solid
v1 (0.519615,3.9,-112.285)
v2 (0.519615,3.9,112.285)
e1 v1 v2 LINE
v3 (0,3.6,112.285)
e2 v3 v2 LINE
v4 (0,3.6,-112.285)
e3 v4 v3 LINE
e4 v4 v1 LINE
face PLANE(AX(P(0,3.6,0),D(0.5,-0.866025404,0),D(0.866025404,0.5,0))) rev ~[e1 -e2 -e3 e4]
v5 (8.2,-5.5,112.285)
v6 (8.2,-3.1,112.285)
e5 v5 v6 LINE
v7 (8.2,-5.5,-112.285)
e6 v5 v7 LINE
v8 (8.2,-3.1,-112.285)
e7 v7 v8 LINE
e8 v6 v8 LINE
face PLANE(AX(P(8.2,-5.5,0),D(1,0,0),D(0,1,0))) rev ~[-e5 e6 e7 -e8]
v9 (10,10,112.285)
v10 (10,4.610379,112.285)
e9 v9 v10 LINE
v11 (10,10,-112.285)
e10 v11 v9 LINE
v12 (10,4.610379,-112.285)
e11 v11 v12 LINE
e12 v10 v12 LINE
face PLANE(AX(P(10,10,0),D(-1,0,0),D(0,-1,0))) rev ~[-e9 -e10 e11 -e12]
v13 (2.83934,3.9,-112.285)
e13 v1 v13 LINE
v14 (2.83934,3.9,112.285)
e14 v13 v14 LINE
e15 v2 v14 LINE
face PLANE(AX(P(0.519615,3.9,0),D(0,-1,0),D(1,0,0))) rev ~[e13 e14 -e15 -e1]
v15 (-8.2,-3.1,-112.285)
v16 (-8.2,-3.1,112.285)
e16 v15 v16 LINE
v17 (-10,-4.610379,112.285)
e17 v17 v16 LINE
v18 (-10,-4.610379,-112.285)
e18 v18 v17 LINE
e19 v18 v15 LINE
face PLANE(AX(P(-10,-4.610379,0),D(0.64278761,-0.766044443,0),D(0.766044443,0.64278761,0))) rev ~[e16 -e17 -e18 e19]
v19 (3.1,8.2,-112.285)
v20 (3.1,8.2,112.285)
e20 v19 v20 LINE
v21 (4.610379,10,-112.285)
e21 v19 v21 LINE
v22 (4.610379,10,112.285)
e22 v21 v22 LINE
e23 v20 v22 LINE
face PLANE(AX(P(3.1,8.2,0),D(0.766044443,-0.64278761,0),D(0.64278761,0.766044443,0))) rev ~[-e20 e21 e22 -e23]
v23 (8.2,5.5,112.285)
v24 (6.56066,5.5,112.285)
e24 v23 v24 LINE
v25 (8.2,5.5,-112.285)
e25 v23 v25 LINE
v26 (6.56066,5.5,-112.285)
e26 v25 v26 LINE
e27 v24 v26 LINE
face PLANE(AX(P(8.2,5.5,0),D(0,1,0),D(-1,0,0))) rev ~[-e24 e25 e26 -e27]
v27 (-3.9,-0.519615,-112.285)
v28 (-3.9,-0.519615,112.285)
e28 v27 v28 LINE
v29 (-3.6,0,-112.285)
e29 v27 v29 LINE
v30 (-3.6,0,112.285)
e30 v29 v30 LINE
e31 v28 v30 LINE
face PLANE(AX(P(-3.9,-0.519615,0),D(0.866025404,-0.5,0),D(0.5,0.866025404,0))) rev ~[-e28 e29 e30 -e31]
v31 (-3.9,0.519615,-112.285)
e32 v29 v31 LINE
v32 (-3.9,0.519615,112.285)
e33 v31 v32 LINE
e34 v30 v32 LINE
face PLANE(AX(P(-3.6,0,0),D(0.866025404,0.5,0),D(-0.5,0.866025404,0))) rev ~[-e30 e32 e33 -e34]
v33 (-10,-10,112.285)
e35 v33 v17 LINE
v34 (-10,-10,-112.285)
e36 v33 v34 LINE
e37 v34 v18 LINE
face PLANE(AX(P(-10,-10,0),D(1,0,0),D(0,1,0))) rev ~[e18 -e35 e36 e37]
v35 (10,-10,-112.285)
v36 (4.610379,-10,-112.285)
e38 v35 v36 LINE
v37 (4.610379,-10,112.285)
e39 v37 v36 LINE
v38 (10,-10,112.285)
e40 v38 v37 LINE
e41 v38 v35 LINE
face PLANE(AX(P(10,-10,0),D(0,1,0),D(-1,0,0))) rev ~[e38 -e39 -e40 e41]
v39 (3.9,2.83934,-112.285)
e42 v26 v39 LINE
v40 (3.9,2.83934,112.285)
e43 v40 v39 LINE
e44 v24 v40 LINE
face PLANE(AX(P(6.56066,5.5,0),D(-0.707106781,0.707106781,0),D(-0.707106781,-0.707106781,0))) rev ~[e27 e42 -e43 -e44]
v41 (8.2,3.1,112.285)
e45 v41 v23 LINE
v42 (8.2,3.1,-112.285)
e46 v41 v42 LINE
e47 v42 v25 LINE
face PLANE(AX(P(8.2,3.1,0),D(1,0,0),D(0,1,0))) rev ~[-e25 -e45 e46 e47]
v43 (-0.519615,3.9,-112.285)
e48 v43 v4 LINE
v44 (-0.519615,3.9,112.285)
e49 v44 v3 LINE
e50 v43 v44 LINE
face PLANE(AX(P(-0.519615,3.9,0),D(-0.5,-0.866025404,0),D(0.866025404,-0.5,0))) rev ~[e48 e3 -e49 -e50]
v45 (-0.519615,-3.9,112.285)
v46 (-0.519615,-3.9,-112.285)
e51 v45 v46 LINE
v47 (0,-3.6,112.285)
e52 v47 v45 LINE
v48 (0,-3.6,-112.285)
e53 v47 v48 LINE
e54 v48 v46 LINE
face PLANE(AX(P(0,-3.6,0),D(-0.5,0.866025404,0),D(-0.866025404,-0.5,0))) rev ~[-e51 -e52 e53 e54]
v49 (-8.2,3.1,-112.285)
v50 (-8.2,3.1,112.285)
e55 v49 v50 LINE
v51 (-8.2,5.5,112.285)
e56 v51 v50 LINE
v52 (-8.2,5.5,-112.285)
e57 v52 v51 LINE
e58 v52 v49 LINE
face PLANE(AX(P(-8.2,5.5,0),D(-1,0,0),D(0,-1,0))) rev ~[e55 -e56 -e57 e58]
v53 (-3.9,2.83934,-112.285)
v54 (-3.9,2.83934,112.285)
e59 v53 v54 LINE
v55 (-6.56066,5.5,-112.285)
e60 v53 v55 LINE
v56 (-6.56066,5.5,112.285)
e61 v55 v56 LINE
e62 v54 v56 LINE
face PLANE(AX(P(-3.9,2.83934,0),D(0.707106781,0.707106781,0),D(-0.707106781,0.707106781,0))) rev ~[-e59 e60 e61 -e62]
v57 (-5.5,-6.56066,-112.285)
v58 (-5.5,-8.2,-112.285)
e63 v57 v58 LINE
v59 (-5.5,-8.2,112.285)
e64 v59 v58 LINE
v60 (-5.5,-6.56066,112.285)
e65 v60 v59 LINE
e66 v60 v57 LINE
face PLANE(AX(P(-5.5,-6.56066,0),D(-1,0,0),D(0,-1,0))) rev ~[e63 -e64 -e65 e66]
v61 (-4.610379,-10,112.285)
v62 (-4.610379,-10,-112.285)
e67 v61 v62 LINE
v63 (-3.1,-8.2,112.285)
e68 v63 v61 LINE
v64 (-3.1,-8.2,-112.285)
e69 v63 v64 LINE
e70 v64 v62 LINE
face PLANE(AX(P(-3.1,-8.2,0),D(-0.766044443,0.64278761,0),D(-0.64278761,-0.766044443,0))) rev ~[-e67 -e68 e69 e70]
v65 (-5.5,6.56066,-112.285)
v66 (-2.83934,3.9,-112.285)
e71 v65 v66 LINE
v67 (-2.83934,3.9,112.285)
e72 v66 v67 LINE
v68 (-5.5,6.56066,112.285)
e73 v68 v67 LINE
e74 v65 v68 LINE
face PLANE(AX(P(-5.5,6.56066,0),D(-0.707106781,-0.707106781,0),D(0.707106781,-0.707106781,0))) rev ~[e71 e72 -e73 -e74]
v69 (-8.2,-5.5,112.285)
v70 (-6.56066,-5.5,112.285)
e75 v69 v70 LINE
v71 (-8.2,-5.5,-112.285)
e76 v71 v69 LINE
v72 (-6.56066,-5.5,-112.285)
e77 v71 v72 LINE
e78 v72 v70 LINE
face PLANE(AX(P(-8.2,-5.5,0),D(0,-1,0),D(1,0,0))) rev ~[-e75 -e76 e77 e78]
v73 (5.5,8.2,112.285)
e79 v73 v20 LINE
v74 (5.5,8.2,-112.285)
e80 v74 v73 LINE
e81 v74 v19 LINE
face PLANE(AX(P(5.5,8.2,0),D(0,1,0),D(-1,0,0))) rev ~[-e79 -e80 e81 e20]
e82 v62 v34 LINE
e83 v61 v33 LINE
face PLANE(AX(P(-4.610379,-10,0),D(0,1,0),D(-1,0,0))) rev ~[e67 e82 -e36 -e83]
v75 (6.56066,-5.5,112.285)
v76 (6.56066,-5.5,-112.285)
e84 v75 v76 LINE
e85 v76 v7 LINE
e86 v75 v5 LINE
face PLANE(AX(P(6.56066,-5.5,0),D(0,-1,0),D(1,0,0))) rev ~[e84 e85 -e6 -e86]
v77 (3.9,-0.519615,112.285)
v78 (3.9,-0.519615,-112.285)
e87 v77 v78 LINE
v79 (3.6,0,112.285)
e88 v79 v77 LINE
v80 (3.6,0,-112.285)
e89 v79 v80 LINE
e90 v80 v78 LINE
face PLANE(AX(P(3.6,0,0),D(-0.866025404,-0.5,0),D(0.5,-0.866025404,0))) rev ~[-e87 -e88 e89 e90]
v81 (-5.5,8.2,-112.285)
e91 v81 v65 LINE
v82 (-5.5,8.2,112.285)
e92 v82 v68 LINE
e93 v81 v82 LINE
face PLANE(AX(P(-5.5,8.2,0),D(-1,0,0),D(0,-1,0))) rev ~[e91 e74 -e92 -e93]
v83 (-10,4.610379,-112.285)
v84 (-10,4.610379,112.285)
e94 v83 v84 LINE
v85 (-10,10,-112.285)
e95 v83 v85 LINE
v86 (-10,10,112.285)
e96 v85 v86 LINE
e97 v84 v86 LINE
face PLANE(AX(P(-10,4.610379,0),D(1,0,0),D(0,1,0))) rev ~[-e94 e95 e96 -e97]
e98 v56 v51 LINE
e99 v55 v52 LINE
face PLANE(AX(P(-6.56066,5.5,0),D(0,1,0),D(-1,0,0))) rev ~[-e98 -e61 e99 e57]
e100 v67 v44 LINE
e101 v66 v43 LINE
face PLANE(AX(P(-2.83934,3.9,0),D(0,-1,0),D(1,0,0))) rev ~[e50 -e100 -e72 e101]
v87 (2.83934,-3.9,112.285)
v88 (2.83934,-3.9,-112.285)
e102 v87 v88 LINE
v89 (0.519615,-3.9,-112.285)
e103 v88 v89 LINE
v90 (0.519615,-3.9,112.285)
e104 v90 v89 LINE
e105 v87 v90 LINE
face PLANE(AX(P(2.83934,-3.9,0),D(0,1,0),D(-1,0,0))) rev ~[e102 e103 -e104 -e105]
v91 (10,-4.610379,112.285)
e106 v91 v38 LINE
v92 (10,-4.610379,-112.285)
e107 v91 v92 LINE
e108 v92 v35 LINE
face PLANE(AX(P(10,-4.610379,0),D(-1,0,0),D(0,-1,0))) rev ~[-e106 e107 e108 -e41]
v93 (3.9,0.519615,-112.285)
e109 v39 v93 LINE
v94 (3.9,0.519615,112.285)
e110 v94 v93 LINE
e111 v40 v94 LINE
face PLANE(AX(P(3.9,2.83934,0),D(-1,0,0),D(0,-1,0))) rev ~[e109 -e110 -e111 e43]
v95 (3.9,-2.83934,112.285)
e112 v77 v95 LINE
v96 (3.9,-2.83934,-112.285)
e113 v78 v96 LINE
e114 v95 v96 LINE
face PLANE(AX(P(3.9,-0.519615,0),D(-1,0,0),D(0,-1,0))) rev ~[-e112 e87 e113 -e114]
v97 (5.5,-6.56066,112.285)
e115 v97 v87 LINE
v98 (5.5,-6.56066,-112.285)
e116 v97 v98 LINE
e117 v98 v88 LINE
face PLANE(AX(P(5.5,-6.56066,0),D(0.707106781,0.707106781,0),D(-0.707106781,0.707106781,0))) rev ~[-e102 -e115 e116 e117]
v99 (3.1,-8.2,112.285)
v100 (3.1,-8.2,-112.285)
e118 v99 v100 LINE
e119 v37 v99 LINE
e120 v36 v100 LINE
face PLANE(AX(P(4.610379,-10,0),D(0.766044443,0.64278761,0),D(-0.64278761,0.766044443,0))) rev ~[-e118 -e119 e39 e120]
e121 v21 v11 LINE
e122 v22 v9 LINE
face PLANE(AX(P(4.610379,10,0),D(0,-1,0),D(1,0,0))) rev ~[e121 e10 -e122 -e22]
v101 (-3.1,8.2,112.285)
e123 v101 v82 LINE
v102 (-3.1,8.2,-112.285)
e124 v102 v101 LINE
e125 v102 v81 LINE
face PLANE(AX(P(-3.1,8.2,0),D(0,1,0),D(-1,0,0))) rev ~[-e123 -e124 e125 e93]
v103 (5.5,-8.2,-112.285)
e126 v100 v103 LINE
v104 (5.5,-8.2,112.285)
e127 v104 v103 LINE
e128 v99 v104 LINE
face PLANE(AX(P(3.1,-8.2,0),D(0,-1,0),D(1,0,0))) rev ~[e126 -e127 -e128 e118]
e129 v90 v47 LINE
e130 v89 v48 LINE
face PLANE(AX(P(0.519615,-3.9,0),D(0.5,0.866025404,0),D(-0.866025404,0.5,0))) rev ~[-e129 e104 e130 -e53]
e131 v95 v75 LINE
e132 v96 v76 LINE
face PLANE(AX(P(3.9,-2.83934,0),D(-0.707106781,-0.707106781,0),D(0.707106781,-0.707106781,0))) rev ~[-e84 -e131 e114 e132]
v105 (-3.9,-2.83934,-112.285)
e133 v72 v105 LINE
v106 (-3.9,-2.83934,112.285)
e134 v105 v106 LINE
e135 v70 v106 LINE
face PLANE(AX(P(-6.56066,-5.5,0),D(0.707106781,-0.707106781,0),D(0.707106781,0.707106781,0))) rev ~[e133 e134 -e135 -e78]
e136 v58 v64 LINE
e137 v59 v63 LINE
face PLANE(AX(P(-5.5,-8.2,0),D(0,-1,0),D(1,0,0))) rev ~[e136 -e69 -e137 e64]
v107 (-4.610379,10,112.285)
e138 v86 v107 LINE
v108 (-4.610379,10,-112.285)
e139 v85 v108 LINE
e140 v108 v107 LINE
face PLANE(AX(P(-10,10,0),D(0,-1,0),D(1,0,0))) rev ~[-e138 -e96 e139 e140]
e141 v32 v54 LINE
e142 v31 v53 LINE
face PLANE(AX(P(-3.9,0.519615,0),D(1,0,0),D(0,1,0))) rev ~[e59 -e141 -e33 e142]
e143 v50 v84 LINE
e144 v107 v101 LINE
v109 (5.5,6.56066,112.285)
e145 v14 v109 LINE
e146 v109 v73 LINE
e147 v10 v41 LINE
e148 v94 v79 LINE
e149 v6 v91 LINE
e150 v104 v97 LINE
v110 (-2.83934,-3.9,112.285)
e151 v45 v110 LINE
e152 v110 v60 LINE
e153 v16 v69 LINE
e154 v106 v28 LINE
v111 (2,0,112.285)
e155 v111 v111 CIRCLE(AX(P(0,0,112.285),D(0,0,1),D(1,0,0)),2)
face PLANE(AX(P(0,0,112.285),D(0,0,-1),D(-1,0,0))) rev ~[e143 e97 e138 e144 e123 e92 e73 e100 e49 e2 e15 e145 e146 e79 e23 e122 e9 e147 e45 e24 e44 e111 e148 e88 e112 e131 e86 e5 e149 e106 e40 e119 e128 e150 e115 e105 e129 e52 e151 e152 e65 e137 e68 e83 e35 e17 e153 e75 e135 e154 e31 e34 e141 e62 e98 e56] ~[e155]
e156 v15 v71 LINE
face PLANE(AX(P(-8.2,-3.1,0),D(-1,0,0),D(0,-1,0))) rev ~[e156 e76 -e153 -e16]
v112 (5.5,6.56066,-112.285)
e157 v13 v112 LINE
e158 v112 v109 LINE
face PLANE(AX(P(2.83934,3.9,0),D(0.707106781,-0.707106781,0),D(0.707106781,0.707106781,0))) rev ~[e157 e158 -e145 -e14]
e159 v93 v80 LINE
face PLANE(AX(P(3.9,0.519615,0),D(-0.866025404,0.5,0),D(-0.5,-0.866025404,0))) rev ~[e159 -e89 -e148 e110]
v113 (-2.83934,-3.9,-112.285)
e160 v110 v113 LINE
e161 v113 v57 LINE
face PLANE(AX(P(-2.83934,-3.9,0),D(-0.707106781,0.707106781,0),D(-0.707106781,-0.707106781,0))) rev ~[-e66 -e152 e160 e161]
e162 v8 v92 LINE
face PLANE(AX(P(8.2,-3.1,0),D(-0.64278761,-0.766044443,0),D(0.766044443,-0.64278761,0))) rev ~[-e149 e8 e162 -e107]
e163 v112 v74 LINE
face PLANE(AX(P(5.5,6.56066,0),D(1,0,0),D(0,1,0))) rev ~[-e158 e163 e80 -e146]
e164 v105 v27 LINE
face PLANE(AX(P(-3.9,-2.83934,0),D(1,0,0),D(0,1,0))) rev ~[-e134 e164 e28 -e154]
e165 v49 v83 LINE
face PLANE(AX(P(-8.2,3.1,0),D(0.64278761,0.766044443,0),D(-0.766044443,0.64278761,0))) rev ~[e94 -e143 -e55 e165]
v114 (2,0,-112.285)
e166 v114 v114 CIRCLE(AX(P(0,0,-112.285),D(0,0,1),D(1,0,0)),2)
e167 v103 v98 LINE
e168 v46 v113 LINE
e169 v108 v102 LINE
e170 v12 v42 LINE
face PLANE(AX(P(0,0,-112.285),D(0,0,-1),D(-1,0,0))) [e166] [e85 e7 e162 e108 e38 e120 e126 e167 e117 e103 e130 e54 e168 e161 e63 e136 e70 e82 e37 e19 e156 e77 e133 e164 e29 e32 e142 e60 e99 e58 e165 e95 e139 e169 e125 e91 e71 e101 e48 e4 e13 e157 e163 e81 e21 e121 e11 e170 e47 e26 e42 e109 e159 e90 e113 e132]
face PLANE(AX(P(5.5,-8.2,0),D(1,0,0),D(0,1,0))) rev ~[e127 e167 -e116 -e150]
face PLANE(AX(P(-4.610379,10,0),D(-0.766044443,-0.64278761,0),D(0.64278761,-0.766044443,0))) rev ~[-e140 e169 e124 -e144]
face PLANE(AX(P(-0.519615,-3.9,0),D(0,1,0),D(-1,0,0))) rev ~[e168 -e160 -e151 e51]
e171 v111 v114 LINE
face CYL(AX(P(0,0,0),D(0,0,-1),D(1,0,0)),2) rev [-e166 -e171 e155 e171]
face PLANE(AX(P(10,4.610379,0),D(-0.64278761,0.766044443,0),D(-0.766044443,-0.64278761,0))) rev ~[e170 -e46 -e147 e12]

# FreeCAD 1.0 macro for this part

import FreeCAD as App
import Part
import Sketcher
from FreeCAD import Vector
Q = App.Units.Quantity


def add_polygon(sketch, points):
    """Adds a closed chain of lines whose ends are joined by coincident constraints."""
    first, n = sketch.GeometryCount, len(points)
    for a, b in zip(points, points[1:] + points[:1]):
        sketch.addGeometry(Part.LineSegment(App.Vector(*a, 0), App.Vector(*b, 0)), False)
    for i in range(n):
        sketch.addConstraint(Sketcher.Constraint("Coincident", first + i, 2, first + (i + 1) % n, 1))

doc = App.newDocument("Part")
body = doc.addObject("PartDesign::Body", "Body")

# Sketch on XY plane
sketch1 = body.newObject("Sketcher::SketchObject", "Sketch")
sketch1.AttachmentSupport = (doc.getObject("XY_Plane"), [""])
sketch1.MapMode = "FlatFace"
add_polygon(sketch1, [(10, 4.610379), (10, 10), (4.610379, 10), (3.1, 8.2), (5.5, 8.2), (5.5, 6.56066), (2.83934, 3.9), (0.519615, 3.9), (0, 3.6), (-0.519615, 3.9), (-2.83934, 3.9), (-5.5, 6.56066), (-5.5, 8.2), (-3.1, 8.2), (-4.610379, 10), (-10, 10), (-10, 4.610379), (-8.2, 3.1), (-8.2, 5.5), (-6.56066, 5.5), (-3.9, 2.83934), (-3.9, 0.519615), (-3.6, 0), (-3.9, -0.519615), (-3.9, -2.83934), (-6.56066, -5.5), (-8.2, -5.5), (-8.2, -3.1), (-10, -4.610379), (-10, -10), (-4.610379, -10), (-3.1, -8.2), (-5.5, -8.2), (-5.5, -6.56066), (-2.83934, -3.9), (-0.519615, -3.9), (0, -3.6), (0.519615, -3.9), (2.83934, -3.9), (5.5, -6.56066), (5.5, -8.2), (3.1, -8.2), (4.610379, -10), (10, -10), (10, -4.610379), (8.2, -3.1), (8.2, -5.5), (6.56066, -5.5), (3.9, -2.83934), (3.9, -0.519615), (3.6, 0), (3.9, 0.519615), (3.9, 2.83934), (6.56066, 5.5), (8.2, 5.5), (8.2, 3.1)])  # lines 0-55
sketch1.addGeometry(Part.Circle(Vector(0, 0, 0), Vector(0, 0, 1), 2), False)  # 56
sketch1.addConstraint(Sketcher.Constraint("Vertical", 0))
sketch1.addConstraint(Sketcher.Constraint("Horizontal", 1))
sketch1.addConstraint(Sketcher.Constraint("Horizontal", 3))
sketch1.addConstraint(Sketcher.Constraint("Vertical", 4))
sketch1.addConstraint(Sketcher.Constraint("Horizontal", 6))
sketch1.addConstraint(Sketcher.Constraint("Horizontal", 9))
sketch1.addConstraint(Sketcher.Constraint("Vertical", 11))
sketch1.addConstraint(Sketcher.Constraint("Horizontal", 12))
sketch1.addConstraint(Sketcher.Constraint("Horizontal", 14))
sketch1.addConstraint(Sketcher.Constraint("Vertical", 15))
sketch1.addConstraint(Sketcher.Constraint("Vertical", 17))
sketch1.addConstraint(Sketcher.Constraint("Horizontal", 18))
sketch1.addConstraint(Sketcher.Constraint("Vertical", 20))
sketch1.addConstraint(Sketcher.Constraint("Vertical", 23))
sketch1.addConstraint(Sketcher.Constraint("Horizontal", 25))
sketch1.addConstraint(Sketcher.Constraint("Vertical", 26))
sketch1.addConstraint(Sketcher.Constraint("Vertical", 28))
sketch1.addConstraint(Sketcher.Constraint("Horizontal", 29))
sketch1.addConstraint(Sketcher.Constraint("Horizontal", 31))
sketch1.addConstraint(Sketcher.Constraint("Vertical", 32))
sketch1.addConstraint(Sketcher.Constraint("Horizontal", 34))
sketch1.addConstraint(Sketcher.Constraint("Horizontal", 37))
sketch1.addConstraint(Sketcher.Constraint("Vertical", 39))
sketch1.addConstraint(Sketcher.Constraint("Horizontal", 40))
sketch1.addConstraint(Sketcher.Constraint("Horizontal", 42))
sketch1.addConstraint(Sketcher.Constraint("Vertical", 43))
sketch1.addConstraint(Sketcher.Constraint("Vertical", 45))
sketch1.addConstraint(Sketcher.Constraint("Horizontal", 46))
sketch1.addConstraint(Sketcher.Constraint("Vertical", 48))
sketch1.addConstraint(Sketcher.Constraint("Vertical", 51))
sketch1.addConstraint(Sketcher.Constraint("Horizontal", 53))
sketch1.addConstraint(Sketcher.Constraint("Vertical", 54))
sketch1.addConstraint(Sketcher.Constraint("Coincident", 56, 3, -1, 1))
sketch1.addConstraint(Sketcher.Constraint("Symmetric", 0, 2, 28, 2, -1, 1))
sketch1.addConstraint(Sketcher.Constraint("Symmetric", 2, 2, 30, 2, -1, 1))
sketch1.addConstraint(Sketcher.Constraint("Symmetric", 4, 2, 32, 2, -1, 1))
sketch1.addConstraint(Sketcher.Constraint("Symmetric", 5, 2, 33, 2, -1, 1))
sketch1.addConstraint(Sketcher.Constraint("Symmetric", 7, 2, 35, 2, -1, 1))
sketch1.addConstraint(Sketcher.Constraint("Symmetric", 8, 2, 36, 2, -1, 1))
sketch1.addConstraint(Sketcher.Constraint("Symmetric", 10, 2, 38, 2, -1, 1))
sketch1.addConstraint(Sketcher.Constraint("Symmetric", 12, 2, 40, 2, -1, 1))
sketch1.addConstraint(Sketcher.Constraint("Symmetric", 13, 2, 41, 2, -1, 1))
sketch1.addConstraint(Sketcher.Constraint("Symmetric", 15, 2, 43, 2, -1, 1))
sketch1.addConstraint(Sketcher.Constraint("Symmetric", 16, 2, 44, 2, -1, 1))
sketch1.addConstraint(Sketcher.Constraint("Symmetric", 18, 2, 46, 2, -1, 1))
sketch1.addConstraint(Sketcher.Constraint("Symmetric", 19, 2, 47, 2, -1, 1))
sketch1.addConstraint(Sketcher.Constraint("Symmetric", 21, 2, 49, 2, -1, 1))
sketch1.addConstraint(Sketcher.Constraint("Symmetric", 22, 2, 50, 2, -1, 1))
sketch1.addConstraint(Sketcher.Constraint("Symmetric", 24, 2, 52, 2, -1, 1))
sketch1.addConstraint(Sketcher.Constraint("Symmetric", 26, 2, 54, 2, -1, 1))
sketch1.addConstraint(Sketcher.Constraint("Symmetric", 6, 2, 8, 2, -2))
sketch1.addConstraint(Sketcher.Constraint("Symmetric", 4, 2, 10, 2, -2))
sketch1.addConstraint(Sketcher.Constraint("Symmetric", 2, 2, 12, 2, -2))
sketch1.addConstraint(Sketcher.Constraint("Symmetric", 1, 2, 13, 2, -2))
sketch1.addConstraint(Sketcher.Constraint("Symmetric", 27, 2, 43, 2, -2))
sketch1.addConstraint(Sketcher.Constraint("Symmetric", 26, 2, 44, 2, -2))
sketch1.addConstraint(Sketcher.Constraint("Symmetric", 24, 2, 46, 2, -2))
sketch1.addConstraint(Sketcher.Constraint("Symmetric", 23, 2, 47, 2, -2))
sketch1.addConstraint(Sketcher.Constraint("PointOnObject", 7, 2, -2))
sketch1.addConstraint(Sketcher.Constraint("PointOnObject", 21, 2, -1))
sketch1.addConstraint(Sketcher.Constraint("Perpendicular", 5, 10))
sketch1.addConstraint(Sketcher.Constraint("Perpendicular", 2, 16))
sketch1.addConstraint(Sketcher.Constraint("Parallel", 10, 19))
sketch1.addConstraint(Sketcher.Constraint("Perpendicular", 7, 21))
sketch1.addConstraint(Sketcher.Constraint("Perpendicular", 8, 22))
sketch1.addConstraint(Sketcher.Constraint("Perpendicular", 19, 24))
sketch1.addConstraint(Sketcher.Constraint("Perpendicular", 16, 30))
sketch1.addConstraint(Sketcher.Constraint("Perpendicular", 21, 35))
sketch1.addConstraint(Sketcher.Constraint("Perpendicular", 33, 38))
sketch1.addConstraint(Sketcher.Constraint("Perpendicular", 35, 49))
sketch1.addConstraint(Sketcher.Constraint("Perpendicular", 47, 52))
sketch1.addConstraint(Sketcher.Constraint("Perpendicular", 41, 55))
sketch1.addConstraint(Sketcher.Constraint("Equal", 42, 0))
sketch1.addConstraint(Sketcher.Constraint("Equal", 53, 4))
sketch1.addConstraint(Sketcher.Constraint("Equal", 40, 17))
sketch1.addConstraint(Sketcher.Constraint("Equal", 37, 20))
sketch1.addConstraint(Sketcher.Constraint("Equal", 13, 16))
sketch1.addConstraint(Sketcher.Constraint("Equal", 10, 19))
sketch1.addConstraint(Sketcher.Constraint("Equal", 8, 21))
sketch1.addConstraint(Sketcher.Constraint("Diameter", 56, Q("4 mm")))
sketch1.addConstraint(Sketcher.Constraint("Angle", 2, Q("-130 deg")))
sketch1.addConstraint(Sketcher.Constraint("Angle", 7, Q("-150 deg")))
sketch1.addConstraint(Sketcher.Constraint("DistanceX", 3, 1, 3, 2, Q("2.4 mm")))
sketch1.addConstraint(Sketcher.Constraint("DistanceX", -1, 1, 0, 2, Q("10 mm")))
sketch1.addConstraint(Sketcher.Constraint("Distance", 7, Q("0.6 mm")))
sketch1.addConstraint(Sketcher.Constraint("DistanceX", -1, 1, 2, 2, Q("3.1 mm")))
sketch1.addConstraint(Sketcher.Constraint("DistanceY", -1, 1, 2, 2, Q("8.2 mm")))
sketch1.addConstraint(Sketcher.Constraint("DistanceY", -1, 1, 5, 2, Q("3.9 mm")))
sketch1.addConstraint(Sketcher.Constraint("DistanceX", 18, 1, 18, 2, Q("1.63934 mm")))
pad1 = body.newObject("PartDesign::Pad", "Pad")
pad1.Profile = sketch1
pad1.Length = 224.57
pad1.Midplane = True

doc.recompute()
